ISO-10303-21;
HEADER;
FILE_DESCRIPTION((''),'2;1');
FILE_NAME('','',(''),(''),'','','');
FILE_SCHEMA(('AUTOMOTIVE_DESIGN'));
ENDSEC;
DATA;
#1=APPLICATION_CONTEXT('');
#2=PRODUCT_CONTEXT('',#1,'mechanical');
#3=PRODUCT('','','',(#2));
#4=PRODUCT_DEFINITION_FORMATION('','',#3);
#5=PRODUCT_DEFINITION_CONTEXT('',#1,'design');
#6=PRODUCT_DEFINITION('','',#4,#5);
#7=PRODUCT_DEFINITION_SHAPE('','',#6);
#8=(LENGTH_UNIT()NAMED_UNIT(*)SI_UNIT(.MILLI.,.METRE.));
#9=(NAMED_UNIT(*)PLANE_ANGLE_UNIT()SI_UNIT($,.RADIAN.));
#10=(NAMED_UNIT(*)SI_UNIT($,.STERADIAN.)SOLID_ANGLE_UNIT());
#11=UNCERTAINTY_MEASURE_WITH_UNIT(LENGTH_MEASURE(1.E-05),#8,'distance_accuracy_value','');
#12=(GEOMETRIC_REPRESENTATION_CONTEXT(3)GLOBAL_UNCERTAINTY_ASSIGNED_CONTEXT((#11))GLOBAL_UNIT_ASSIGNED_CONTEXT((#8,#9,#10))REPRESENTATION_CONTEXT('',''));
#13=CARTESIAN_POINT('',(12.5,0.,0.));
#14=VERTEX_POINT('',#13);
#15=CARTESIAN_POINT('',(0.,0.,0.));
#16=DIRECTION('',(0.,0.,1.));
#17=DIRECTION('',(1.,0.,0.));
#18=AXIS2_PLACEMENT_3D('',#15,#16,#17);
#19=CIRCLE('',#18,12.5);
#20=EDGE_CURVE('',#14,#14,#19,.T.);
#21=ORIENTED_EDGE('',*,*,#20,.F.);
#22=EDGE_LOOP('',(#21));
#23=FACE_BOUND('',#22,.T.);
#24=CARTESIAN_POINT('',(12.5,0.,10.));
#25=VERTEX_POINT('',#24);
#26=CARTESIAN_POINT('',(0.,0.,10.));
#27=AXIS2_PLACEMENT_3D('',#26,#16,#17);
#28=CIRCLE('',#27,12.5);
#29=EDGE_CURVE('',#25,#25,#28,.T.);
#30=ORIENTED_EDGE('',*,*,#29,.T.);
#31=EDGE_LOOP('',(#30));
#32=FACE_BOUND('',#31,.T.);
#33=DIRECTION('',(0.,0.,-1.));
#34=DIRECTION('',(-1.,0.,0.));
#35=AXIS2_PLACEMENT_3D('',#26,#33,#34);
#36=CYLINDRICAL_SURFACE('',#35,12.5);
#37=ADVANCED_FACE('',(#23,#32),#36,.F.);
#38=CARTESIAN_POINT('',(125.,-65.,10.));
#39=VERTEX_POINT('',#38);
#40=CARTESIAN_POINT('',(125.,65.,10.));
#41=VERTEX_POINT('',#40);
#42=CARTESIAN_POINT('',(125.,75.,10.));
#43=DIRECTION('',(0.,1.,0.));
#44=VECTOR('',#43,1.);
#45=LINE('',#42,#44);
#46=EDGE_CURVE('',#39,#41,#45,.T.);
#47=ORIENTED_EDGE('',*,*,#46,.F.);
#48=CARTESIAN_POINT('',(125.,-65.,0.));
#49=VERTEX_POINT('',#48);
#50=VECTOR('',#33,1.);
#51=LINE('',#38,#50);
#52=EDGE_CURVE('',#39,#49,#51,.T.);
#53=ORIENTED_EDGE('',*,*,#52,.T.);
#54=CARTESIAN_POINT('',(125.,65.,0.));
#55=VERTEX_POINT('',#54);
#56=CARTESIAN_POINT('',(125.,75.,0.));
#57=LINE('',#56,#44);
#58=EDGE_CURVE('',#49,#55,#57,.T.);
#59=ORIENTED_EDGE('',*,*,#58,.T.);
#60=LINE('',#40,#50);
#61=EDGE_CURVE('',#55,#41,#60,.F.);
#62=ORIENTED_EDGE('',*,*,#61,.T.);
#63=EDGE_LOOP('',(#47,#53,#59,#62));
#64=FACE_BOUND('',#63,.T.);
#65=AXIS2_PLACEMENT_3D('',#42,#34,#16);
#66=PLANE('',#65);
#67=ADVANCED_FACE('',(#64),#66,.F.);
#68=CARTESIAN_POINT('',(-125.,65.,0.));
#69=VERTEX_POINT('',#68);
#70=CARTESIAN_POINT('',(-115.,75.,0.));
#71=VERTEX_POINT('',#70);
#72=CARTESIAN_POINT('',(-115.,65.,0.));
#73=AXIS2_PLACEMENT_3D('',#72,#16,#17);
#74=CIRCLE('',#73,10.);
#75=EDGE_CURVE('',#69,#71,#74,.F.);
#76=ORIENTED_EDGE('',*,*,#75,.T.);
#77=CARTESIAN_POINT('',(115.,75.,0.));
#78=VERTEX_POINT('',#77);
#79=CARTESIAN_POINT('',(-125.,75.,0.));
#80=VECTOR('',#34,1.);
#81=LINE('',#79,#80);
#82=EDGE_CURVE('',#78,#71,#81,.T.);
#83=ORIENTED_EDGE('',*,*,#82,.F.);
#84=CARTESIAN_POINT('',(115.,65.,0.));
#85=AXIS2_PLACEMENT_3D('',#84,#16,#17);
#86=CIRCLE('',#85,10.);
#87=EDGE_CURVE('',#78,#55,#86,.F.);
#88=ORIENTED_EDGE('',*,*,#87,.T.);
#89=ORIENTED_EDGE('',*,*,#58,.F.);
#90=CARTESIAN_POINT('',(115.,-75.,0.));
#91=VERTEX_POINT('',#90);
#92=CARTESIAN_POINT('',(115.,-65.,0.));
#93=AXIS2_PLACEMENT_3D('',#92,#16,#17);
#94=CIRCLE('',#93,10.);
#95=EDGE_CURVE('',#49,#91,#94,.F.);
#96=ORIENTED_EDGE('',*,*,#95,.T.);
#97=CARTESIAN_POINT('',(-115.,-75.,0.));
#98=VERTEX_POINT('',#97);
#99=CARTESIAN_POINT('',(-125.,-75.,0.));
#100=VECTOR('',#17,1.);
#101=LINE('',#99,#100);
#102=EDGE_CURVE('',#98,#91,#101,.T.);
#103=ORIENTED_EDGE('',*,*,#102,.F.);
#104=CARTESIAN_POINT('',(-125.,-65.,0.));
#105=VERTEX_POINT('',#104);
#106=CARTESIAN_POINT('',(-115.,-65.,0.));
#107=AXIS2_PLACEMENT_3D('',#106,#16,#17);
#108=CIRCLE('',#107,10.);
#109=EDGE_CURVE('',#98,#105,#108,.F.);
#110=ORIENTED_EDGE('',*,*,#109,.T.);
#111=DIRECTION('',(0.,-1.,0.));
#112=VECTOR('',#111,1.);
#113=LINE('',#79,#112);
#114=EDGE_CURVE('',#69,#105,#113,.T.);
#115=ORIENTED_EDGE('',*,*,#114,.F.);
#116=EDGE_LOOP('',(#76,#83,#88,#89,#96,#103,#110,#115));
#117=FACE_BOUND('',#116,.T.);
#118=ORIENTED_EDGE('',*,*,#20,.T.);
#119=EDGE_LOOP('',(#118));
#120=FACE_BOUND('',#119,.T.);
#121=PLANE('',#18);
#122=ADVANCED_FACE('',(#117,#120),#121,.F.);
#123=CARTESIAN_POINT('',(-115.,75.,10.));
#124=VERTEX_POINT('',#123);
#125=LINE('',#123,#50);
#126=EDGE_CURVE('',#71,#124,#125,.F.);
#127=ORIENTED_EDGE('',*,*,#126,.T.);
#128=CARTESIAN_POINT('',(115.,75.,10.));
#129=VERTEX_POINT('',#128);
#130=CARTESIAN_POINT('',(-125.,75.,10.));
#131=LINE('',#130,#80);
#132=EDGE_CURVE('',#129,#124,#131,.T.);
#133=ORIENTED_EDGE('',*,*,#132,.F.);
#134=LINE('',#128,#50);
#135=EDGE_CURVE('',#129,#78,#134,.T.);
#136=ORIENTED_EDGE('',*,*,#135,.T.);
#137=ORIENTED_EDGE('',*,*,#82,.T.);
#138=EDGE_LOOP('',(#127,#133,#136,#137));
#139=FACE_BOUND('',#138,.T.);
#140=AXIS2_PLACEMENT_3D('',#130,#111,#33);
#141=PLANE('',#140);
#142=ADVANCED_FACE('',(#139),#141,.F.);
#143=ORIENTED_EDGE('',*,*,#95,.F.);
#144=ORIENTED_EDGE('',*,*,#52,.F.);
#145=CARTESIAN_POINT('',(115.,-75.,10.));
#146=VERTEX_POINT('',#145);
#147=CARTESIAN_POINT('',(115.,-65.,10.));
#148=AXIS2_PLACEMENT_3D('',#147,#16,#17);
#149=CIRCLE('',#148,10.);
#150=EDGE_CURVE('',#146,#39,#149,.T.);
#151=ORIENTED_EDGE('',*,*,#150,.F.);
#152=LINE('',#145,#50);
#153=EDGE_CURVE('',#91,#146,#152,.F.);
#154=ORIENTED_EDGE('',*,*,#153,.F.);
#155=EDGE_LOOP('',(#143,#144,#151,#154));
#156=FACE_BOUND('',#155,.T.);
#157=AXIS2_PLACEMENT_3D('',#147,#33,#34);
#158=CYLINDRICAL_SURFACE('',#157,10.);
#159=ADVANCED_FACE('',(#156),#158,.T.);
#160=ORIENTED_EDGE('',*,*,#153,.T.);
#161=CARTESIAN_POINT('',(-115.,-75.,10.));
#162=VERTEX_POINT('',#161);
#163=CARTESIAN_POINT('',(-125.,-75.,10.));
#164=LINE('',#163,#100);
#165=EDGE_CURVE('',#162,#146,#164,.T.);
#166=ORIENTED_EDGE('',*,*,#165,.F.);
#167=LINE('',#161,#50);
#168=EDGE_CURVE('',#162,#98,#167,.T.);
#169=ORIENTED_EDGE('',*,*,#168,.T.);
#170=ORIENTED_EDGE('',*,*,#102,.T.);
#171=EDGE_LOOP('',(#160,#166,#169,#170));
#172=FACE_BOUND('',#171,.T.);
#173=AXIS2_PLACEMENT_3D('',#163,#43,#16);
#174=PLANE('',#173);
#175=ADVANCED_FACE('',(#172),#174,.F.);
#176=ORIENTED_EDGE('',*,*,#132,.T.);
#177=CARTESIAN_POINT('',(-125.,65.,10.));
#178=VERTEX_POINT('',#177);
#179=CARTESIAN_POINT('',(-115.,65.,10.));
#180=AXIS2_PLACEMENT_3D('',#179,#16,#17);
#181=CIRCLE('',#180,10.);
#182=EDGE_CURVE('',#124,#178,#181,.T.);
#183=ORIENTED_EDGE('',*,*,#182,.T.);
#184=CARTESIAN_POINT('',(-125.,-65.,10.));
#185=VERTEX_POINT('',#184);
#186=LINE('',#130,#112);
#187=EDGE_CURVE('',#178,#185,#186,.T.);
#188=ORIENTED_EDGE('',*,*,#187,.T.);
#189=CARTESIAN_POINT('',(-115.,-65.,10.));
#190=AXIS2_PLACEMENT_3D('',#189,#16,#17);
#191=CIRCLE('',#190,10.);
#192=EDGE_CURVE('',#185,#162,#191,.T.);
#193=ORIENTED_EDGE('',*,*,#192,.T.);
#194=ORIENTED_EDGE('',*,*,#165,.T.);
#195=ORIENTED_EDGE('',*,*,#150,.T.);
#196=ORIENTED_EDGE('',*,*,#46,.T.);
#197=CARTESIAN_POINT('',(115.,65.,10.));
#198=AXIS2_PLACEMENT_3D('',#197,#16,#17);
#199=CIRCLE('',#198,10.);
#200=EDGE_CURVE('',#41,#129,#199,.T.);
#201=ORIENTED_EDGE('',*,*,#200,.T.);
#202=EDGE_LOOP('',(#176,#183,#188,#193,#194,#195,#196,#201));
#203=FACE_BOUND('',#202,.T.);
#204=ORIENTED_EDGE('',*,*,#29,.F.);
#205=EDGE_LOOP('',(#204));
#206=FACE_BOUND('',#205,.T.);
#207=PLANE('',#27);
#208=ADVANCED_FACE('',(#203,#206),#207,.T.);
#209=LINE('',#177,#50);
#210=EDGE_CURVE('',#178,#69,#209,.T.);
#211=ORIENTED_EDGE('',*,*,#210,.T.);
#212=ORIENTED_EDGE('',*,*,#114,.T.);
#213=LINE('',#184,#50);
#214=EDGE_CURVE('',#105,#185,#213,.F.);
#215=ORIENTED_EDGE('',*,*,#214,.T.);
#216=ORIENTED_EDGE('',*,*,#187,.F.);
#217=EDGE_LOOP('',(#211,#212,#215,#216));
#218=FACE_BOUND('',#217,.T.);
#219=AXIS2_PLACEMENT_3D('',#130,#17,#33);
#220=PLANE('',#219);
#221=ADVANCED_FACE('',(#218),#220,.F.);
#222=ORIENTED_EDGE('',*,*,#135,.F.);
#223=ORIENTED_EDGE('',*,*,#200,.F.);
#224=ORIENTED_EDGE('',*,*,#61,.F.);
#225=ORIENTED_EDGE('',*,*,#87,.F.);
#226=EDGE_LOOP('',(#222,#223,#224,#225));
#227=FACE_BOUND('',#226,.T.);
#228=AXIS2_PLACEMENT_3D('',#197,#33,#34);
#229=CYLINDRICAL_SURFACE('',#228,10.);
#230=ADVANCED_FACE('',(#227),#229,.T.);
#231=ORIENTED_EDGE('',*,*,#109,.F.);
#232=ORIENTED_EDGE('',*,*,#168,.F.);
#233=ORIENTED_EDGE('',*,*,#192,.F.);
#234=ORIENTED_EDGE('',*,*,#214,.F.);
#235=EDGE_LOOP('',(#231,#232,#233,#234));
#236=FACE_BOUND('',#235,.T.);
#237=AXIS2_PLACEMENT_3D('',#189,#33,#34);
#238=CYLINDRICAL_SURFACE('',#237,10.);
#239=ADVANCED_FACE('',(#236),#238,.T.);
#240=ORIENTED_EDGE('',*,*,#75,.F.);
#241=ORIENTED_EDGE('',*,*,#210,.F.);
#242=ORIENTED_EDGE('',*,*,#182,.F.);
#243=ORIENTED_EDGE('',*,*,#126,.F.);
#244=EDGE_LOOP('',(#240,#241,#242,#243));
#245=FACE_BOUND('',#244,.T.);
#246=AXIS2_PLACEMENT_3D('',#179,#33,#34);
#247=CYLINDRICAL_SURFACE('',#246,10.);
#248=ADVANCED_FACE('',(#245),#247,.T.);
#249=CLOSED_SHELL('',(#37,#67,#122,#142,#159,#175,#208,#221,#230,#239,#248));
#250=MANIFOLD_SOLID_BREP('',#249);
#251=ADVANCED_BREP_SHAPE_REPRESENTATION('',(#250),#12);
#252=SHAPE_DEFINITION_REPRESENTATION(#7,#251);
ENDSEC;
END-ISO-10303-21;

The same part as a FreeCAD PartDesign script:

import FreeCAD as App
import Part
import Sketcher


def edges_at(feature, points):
    """Names of the edges that pass closest to the given points."""
    edges = feature.Shape.Edges
    near = lambda p: min(range(len(edges)), key=lambda i: edges[i].distToShape(Part.Vertex(*p))[0])
    return sorted({f"Edge{near(p) + 1}" for p in points})

doc = App.newDocument("Part")
body = doc.addObject("PartDesign::Body", "Body")

# Sketch on XY plane
sketch1 = body.newObject("Sketcher::SketchObject", "Sketch")
sketch1.AttachmentSupport = (doc.getObject("XY_Plane"), [""])
sketch1.MapMode = "FlatFace"
sketch1.addGeometry(Part.LineSegment(App.Vector(-125, 75, 0), App.Vector(-125, -75, 0)), False)
sketch1.addGeometry(Part.LineSegment(App.Vector(-125, -75, 0), App.Vector(125, -75, 0)), False)
sketch1.addGeometry(Part.LineSegment(App.Vector(125, -75, 0), App.Vector(125, 75, 0)), False)
sketch1.addGeometry(Part.LineSegment(App.Vector(125, 75, 0), App.Vector(-125, 75, 0)), False)
sketch1.addGeometry(Part.Circle(App.Vector(0, 0, 0), App.Vector(0, 0, 1), 12), False)
sketch1.addConstraint(Sketcher.Constraint("Coincident", 0, 2, 1, 1))
sketch1.addConstraint(Sketcher.Constraint("Coincident", 1, 2, 2, 1))
sketch1.addConstraint(Sketcher.Constraint("Coincident", 2, 2, 3, 1))
sketch1.addConstraint(Sketcher.Constraint("Coincident", 3, 2, 0, 1))
sketch1.addConstraint(Sketcher.Constraint("Vertical", 0))
sketch1.addConstraint(Sketcher.Constraint("Horizontal", 1))
sketch1.addConstraint(Sketcher.Constraint("Vertical", 2))
sketch1.addConstraint(Sketcher.Constraint("Horizontal", 3))
sketch1.addConstraint(Sketcher.Constraint("Coincident", 4, 3, -1, 1))
sketch1.addConstraint(Sketcher.Constraint("Symmetric", 0, 2, 2, 2, -1, 1))
sketch1.addConstraint(Sketcher.Constraint("Diameter", 4, 25.0))
sketch1.addConstraint(Sketcher.Constraint("DistanceX", 1, 1, 1, 2, 250.0))
sketch1.addConstraint(Sketcher.Constraint("DistanceY", 0, 2, 0, 1, 150.0))
pad1 = body.newObject("PartDesign::Pad", "Pad")
pad1.Profile = sketch1
pad1.Length = 10
doc.recompute()

fillet = body.newObject("PartDesign::Fillet", "Fillet")
fillet.Base = (pad1, edges_at(pad1, [
    (-125, 75, 5),
    (125, 75, 5),
    (125, -75, 5),
    (-125, -75, 5),
]))
fillet.Radius = 10

doc.recompute()
